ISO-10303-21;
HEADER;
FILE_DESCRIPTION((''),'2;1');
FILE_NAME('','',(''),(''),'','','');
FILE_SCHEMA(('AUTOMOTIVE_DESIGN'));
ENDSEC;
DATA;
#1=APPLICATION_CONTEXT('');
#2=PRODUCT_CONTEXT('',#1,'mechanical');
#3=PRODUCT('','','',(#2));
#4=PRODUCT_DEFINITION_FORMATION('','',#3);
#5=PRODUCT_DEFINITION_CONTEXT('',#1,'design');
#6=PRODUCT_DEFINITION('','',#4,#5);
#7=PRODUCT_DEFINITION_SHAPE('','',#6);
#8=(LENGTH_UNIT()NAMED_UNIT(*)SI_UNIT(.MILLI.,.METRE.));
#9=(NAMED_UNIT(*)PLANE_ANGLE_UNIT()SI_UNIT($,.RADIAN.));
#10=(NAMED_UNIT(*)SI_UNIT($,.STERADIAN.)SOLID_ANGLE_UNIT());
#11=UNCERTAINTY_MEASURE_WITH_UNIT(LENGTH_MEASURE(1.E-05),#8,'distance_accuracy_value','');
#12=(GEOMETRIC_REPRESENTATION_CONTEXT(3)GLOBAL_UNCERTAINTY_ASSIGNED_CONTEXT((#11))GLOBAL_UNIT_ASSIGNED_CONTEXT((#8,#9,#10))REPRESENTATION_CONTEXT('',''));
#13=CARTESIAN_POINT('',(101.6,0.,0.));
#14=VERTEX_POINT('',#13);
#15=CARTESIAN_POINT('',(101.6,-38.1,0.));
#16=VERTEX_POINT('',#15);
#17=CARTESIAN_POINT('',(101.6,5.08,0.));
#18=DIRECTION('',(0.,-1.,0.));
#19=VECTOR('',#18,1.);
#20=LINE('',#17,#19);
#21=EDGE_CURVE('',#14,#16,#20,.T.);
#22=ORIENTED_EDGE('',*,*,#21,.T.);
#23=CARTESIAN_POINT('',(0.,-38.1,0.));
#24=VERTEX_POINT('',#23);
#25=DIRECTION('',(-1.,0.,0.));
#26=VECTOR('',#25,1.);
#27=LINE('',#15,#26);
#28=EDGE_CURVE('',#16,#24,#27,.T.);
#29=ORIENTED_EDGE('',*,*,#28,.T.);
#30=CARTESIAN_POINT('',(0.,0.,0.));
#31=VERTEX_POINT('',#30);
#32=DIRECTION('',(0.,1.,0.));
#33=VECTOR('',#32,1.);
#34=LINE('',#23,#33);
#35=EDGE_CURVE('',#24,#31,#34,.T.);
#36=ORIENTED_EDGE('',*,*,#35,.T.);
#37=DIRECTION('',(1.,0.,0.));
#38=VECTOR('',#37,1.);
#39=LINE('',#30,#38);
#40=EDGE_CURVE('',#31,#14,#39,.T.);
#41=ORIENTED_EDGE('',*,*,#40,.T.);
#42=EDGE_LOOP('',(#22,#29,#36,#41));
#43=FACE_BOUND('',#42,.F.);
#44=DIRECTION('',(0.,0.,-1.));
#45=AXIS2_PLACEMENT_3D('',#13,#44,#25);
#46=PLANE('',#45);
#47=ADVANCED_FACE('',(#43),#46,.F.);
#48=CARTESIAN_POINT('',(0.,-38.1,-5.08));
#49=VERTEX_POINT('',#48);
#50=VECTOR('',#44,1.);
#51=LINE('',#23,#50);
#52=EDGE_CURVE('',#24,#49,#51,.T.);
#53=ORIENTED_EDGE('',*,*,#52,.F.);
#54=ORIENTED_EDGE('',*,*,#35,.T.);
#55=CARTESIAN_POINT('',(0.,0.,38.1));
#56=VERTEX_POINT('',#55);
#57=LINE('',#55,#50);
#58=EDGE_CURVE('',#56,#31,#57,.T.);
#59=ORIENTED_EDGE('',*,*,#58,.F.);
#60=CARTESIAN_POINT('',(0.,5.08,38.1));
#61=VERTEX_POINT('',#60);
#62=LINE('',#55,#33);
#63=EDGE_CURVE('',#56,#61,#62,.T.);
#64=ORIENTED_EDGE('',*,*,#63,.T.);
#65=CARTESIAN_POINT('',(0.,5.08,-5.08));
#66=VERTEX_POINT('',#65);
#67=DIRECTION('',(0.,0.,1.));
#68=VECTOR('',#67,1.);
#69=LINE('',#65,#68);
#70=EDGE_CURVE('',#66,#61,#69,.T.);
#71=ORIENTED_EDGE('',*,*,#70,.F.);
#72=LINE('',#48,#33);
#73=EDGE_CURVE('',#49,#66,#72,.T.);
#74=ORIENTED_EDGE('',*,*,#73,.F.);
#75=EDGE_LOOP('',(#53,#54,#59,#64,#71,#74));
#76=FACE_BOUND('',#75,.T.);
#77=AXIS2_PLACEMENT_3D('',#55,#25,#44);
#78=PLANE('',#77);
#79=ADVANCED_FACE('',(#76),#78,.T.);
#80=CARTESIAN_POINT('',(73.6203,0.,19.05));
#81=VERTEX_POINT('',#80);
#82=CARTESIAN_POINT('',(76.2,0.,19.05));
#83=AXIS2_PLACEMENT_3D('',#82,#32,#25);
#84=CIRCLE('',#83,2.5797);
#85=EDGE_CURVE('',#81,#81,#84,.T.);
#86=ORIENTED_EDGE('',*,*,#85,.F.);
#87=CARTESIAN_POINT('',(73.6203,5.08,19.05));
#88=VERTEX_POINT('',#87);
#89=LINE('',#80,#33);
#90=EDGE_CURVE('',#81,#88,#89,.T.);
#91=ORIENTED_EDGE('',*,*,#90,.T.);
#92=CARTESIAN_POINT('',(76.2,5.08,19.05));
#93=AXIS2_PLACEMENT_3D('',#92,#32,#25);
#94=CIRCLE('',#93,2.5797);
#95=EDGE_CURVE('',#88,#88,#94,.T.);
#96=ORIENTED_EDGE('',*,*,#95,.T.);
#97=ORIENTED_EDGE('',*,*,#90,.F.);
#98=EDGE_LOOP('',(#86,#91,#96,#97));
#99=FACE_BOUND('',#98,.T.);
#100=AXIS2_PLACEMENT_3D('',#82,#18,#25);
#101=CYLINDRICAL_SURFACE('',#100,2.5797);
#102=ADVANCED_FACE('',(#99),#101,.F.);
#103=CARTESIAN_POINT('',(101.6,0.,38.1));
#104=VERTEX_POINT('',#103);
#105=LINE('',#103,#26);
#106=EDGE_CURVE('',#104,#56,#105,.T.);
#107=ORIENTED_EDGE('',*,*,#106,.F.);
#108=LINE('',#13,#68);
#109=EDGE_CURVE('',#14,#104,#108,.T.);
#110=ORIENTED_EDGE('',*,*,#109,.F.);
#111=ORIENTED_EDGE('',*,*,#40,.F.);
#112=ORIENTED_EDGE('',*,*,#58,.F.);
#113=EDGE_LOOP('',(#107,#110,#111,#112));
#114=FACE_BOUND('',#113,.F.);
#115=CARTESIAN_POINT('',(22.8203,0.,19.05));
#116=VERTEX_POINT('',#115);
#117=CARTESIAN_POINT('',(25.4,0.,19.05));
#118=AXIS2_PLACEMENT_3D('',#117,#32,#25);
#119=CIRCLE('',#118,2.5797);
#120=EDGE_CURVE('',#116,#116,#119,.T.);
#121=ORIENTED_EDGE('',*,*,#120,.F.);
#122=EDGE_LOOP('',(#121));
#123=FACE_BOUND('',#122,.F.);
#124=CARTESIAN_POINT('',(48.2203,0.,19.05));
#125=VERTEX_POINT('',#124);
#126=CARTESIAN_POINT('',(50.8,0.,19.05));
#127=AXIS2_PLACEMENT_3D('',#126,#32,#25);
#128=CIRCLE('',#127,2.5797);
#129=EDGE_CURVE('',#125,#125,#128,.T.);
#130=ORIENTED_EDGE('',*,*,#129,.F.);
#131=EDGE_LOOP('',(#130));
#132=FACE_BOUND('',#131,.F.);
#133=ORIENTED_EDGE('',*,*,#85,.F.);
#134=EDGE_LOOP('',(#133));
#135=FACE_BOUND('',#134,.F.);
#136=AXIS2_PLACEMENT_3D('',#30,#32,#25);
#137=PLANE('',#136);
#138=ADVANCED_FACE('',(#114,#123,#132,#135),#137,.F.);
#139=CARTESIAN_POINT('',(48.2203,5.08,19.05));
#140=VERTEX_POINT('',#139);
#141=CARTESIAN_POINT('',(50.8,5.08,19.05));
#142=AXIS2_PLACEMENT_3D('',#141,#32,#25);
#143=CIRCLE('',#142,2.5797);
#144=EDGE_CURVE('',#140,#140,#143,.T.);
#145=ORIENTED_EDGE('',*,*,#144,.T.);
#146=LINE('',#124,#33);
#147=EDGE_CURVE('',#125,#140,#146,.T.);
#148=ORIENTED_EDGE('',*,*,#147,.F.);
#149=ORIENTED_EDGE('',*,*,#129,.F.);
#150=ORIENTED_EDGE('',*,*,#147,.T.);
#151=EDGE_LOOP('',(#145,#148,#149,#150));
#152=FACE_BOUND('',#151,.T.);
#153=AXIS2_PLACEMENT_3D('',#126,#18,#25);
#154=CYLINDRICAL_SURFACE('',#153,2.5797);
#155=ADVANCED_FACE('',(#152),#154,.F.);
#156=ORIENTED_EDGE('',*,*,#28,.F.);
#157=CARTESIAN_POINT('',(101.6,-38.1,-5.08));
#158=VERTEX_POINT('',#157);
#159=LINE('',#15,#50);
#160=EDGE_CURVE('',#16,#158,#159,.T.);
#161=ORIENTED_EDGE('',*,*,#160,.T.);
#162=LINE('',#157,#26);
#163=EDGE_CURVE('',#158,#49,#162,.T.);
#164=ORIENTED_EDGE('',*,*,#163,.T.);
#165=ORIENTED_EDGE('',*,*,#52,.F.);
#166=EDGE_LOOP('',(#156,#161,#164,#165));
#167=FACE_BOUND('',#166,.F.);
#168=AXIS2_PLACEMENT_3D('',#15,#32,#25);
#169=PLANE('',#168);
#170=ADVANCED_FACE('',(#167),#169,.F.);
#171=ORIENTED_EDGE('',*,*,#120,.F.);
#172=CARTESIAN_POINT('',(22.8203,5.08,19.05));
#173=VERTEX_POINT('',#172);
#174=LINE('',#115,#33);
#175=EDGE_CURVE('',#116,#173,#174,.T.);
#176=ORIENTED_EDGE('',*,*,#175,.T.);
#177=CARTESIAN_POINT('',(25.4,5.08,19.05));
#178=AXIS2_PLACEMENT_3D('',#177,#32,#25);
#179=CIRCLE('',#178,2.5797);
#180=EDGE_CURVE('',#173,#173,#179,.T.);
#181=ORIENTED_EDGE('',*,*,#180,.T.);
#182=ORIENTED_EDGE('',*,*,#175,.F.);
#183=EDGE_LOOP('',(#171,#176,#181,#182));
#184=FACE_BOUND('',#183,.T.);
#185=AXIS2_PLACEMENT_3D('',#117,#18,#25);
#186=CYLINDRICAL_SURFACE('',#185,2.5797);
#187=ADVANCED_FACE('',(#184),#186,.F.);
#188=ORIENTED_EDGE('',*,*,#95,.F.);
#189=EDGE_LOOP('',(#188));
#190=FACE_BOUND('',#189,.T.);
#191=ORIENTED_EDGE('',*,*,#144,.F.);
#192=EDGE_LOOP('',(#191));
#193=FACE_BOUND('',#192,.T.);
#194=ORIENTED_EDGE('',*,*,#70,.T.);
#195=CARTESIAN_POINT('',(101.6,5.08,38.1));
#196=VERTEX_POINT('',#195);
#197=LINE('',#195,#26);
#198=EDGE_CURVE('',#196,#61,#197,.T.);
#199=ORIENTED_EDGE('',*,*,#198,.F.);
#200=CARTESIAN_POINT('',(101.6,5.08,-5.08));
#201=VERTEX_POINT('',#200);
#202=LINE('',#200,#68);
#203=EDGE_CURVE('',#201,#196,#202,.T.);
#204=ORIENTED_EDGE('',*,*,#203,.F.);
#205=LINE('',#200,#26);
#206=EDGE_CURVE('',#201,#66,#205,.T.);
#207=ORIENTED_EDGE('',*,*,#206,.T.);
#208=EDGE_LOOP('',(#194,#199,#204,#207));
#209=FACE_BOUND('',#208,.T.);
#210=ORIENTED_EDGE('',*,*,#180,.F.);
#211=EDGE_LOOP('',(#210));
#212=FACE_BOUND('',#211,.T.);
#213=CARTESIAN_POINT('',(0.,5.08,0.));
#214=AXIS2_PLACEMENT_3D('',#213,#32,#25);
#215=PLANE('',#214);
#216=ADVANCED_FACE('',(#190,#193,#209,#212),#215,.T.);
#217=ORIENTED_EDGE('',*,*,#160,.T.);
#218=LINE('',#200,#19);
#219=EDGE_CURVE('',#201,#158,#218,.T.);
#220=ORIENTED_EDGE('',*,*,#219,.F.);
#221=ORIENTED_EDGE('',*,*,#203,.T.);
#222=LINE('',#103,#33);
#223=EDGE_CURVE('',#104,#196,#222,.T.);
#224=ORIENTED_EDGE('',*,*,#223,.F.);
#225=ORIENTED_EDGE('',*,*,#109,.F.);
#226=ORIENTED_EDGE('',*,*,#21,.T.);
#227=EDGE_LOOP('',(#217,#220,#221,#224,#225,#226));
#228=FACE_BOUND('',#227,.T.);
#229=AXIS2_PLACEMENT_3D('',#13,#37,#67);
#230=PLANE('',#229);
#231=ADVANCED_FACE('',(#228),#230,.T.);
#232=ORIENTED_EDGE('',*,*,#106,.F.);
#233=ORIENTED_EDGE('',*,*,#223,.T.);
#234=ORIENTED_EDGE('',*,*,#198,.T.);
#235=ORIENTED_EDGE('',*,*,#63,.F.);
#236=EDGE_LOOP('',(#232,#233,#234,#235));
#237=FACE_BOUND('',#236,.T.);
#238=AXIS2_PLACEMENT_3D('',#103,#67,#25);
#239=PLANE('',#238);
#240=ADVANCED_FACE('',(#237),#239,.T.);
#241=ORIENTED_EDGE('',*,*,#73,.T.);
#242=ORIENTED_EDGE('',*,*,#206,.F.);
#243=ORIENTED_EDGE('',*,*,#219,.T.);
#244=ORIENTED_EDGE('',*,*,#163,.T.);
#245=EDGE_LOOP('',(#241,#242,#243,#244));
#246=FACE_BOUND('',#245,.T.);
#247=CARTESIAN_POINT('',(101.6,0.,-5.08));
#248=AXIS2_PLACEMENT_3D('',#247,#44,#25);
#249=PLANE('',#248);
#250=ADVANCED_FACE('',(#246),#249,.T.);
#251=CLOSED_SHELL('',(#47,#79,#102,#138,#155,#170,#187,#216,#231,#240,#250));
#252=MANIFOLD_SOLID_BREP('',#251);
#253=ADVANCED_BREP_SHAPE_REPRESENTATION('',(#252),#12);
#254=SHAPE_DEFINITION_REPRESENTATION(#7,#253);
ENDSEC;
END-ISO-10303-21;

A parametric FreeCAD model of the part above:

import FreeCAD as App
import Part
import Sketcher
from FreeCAD import Vector
Q = App.Units.Quantity


def add_polygon(sketch, points):
    """Adds a closed chain of lines whose ends are joined by coincident constraints."""
    first, n = sketch.GeometryCount, len(points)
    for a, b in zip(points, points[1:] + points[:1]):
        sketch.addGeometry(Part.LineSegment(App.Vector(*a, 0), App.Vector(*b, 0)), False)
    for i in range(n):
        sketch.addConstraint(Sketcher.Constraint("Coincident", first + i, 2, first + (i + 1) % n, 1))

doc = App.newDocument("Part")
body = doc.addObject("PartDesign::Body", "Body")

# Sketch on XZ plane
sketch1 = body.newObject("Sketcher::SketchObject", "Sketch")
sketch1.AttachmentSupport = (doc.getObject("XZ_Plane"), [""])
sketch1.MapMode = "FlatFace"
add_polygon(sketch1, [(101.6, 0), (0, 0), (0, 38.1), (101.6, 38.1)])  # lines 0-3
sketch1.addGeometry(Part.Circle(Vector(76.2, 19.1, 0), Vector(0, 0, 1), 2.6), False)  # 4
sketch1.addGeometry(Part.Circle(Vector(50.8, 19.1, 0), Vector(0, 0, 1), 2.6), False)  # 5
sketch1.addGeometry(Part.Circle(Vector(25.4, 19.1, 0), Vector(0, 0, 1), 2.6), False)  # 6
sketch1.addConstraint([
    Sketcher.Constraint("Horizontal", 0),
    Sketcher.Constraint("Vertical", 1),
    Sketcher.Constraint("Horizontal", 2),
    Sketcher.Constraint("Vertical", 3),
    Sketcher.Constraint("Coincident", 0, 2, -1, 1),
    Sketcher.Constraint("Equal", 4, 5),
    Sketcher.Constraint("Equal", 5, 6),
    Sketcher.Constraint("Horizontal", 4, 3, 5, 3),
    Sketcher.Constraint("Horizontal", 5, 3, 6, 3),
    Sketcher.Constraint("DistanceX", 0, 2, 0, 1, Q("4 in")),
    Sketcher.Constraint("Diameter", 4, Q("0.203126 in")),
    Sketcher.Constraint("DistanceY", 1, 1, 1, 2, Q("1.5 in")),
    Sketcher.Constraint("DistanceX", -1, 1, 6, 3, Q("1 in")),
    Sketcher.Constraint("DistanceX", 5, 3, 4, 3, Q("1 in")),
    Sketcher.Constraint("DistanceX", 6, 3, 5, 3, Q("1 in")),
    Sketcher.Constraint("DistanceY", -1, 1, 4, 3, Q("0.75 in")),
])
pad1 = body.newObject("PartDesign::Pad", "Pad")
pad1.Profile = sketch1
pad1.Length = Q("0.2 in")
pad1.Reversed = True

# Sketch on XY plane
sketch2 = body.newObject("Sketcher::SketchObject", "Sketch001")
sketch2.AttachmentSupport = (doc.getObject("XY_Plane"), [""])
sketch2.MapMode = "FlatFace"
add_polygon(sketch2, [(0, 5), (102, 5), (102, -38), (0, -38)])  # lines 0-3
sketch2.addConstraint([
    Sketcher.Constraint("Horizontal", 0),
    Sketcher.Constraint("Vertical", 1),
    Sketcher.Constraint("Horizontal", 2),
    Sketcher.Constraint("Vertical", 3),
    Sketcher.Constraint("PointOnObject", 2, 2, -2),
    Sketcher.Constraint("DistanceY", 1, 2, 1, 1, Q("1.7 in")),
    Sketcher.Constraint("DistanceX", 0, 1, 0, 2, Q("4 in")),
    Sketcher.Constraint("DistanceY", -1, 1, 0, 2, Q("0.2 in")),
])
pad2 = body.newObject("PartDesign::Pad", "Pad001")
pad2.Profile = sketch2
pad2.Length = Q("0.2 in")
pad2.Reversed = True

doc.recompute()
